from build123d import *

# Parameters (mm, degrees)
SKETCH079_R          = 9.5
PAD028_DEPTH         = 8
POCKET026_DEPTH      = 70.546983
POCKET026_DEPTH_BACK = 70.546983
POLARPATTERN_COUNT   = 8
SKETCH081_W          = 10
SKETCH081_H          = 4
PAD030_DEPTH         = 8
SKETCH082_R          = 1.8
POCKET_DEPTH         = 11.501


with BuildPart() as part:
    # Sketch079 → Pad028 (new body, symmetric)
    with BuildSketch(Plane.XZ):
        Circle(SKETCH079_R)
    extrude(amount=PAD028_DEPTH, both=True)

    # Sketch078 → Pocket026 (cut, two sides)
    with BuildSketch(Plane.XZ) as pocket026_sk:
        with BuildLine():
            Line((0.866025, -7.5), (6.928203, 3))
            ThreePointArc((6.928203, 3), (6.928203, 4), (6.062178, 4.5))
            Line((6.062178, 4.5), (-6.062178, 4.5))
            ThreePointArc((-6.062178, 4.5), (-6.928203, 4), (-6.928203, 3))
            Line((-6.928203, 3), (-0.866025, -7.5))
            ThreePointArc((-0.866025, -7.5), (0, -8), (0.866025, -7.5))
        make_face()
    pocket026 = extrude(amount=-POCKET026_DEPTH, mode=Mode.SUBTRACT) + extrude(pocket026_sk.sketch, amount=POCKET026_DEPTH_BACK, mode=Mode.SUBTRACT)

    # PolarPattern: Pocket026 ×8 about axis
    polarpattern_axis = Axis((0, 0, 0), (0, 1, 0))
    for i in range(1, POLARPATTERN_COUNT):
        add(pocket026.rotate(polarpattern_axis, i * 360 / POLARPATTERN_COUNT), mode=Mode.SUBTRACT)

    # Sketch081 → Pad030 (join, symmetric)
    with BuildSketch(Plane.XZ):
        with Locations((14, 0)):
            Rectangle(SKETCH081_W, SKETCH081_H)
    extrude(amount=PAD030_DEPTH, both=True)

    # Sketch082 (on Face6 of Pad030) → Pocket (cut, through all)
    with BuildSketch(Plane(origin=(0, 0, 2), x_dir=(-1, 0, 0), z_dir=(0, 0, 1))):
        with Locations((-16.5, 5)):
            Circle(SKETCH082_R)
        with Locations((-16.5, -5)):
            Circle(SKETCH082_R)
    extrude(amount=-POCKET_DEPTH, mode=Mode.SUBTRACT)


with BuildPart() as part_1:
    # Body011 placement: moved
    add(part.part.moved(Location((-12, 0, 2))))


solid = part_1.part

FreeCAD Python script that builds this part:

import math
import FreeCAD as App
import Part
import Sketcher
Q = App.Units.Quantity

doc = App.newDocument("Part")
body = doc.addObject("PartDesign::Body", "Body")

sketch1 = body.newObject("Sketcher::SketchObject", "Sketch")
sketch1.AttachmentSupport = (doc.getObject("XZ_Plane"), [""])
sketch1.MapMode = "FlatFace"
sketch1.addGeometry(Part.Circle(App.Vector(0, 0, 0), App.Vector(0, 0, 1), 9.5), False)
sketch1.addConstraint(Sketcher.Constraint("Coincident", 0, 3, -1, 1))
sketch1.addConstraint(Sketcher.Constraint("Diameter", 0, 19.0))
pad1 = body.newObject("PartDesign::Pad", "Pad")
pad1.Profile = sketch1
pad1.Length = 16
pad1.Midplane = True

sketch2 = body.newObject("Sketcher::SketchObject", "Sketch001")
sketch2.AttachmentSupport = (doc.getObject("XZ_Plane"), [""])
sketch2.MapMode = "FlatFace"
sketch2.addGeometry(Part.LineSegment(App.Vector(0.866025, -7.5, 0), App.Vector(6.928203, 3, 0)), False)
sketch2.addGeometry(Part.ArcOfCircle(Part.Circle(App.Vector(6.062178, 3.5, 0), App.Vector(0, 0, 1), 1), math.radians(-30), math.radians(89.999977)), False)
sketch2.addGeometry(Part.LineSegment(App.Vector(6.062178, 4.5, 0), App.Vector(-6.062178, 4.5, 0)), False)
sketch2.addGeometry(Part.ArcOfCircle(Part.Circle(App.Vector(-6.062178, 3.5, 0), App.Vector(0, 0, 1), 1), math.radians(90.000023), math.radians(210)), False)
sketch2.addGeometry(Part.LineSegment(App.Vector(-6.928203, 3, 0), App.Vector(-0.866025, -7.5, 0)), False)
sketch2.addGeometry(Part.ArcOfCircle(Part.Circle(App.Vector(0, -7.000001, 0), App.Vector(0, 0, 1), 0.999999), math.radians(-150.000023), math.radians(-29.999977)), False)
sketch2.addConstraint(Sketcher.Constraint("Tangent", 0, 2, 1, 1))
sketch2.addConstraint(Sketcher.Constraint("Tangent", 1, 2, 2, 1))
sketch2.addConstraint(Sketcher.Constraint("Tangent", 2, 2, 3, 1))
sketch2.addConstraint(Sketcher.Constraint("Tangent", 3, 2, 4, 1))
sketch2.addConstraint(Sketcher.Constraint("Tangent", 4, 2, 5, 1))
sketch2.addConstraint(Sketcher.Constraint("Tangent", 5, 2, 0, 1))
sketch2.addConstraint(Sketcher.Constraint("Horizontal", 2))
sketch2.addConstraint(Sketcher.Constraint("Equal", 1, 3))
sketch2.addConstraint(Sketcher.Constraint("Equal", 3, 5))
sketch2.addConstraint(Sketcher.Constraint("Symmetric", 0, 2, 3, 2, -2))
sketch2.addConstraint(Sketcher.Constraint("Radius", 1, 1.0))
sketch2.addConstraint(Sketcher.Constraint("Angle", 0, Q("59.999999 deg")))
sketch2.addConstraint(Sketcher.Constraint("DistanceY", 5, 3, -1, 1, 7.000001))
sketch2.addConstraint(Sketcher.Constraint("DistanceY", -1, 1, 0, 2, 3.0))
pocket1 = body.newObject("PartDesign::Pocket", "Pocket")
pocket1.Profile = sketch2
pocket1.Type = "ThroughAll"
pocket1.Midplane = True
doc.recompute()

polarpattern = body.newObject("PartDesign::PolarPattern", "PolarPattern")
polarpattern.Originals = [pocket1]
polarpattern.Axis = (doc.getObject("Y_Axis"), [""])
polarpattern.Angle = 360
polarpattern.Occurrences = 8
body.Tip = polarpattern

sketch3 = body.newObject("Sketcher::SketchObject", "Sketch002")
sketch3.AttachmentSupport = (doc.getObject("XZ_Plane"), [""])
sketch3.MapMode = "FlatFace"
sketch3.addGeometry(Part.LineSegment(App.Vector(9, 2, 0), App.Vector(9, -2, 0)), False)
sketch3.addGeometry(Part.LineSegment(App.Vector(9, -2, 0), App.Vector(19, -2, 0)), False)
sketch3.addGeometry(Part.LineSegment(App.Vector(19, -2, 0), App.Vector(19, 2, 0)), False)
sketch3.addGeometry(Part.LineSegment(App.Vector(19, 2, 0), App.Vector(9, 2, 0)), False)
sketch3.addConstraint(Sketcher.Constraint("Coincident", 0, 2, 1, 1))
sketch3.addConstraint(Sketcher.Constraint("Coincident", 1, 2, 2, 1))
sketch3.addConstraint(Sketcher.Constraint("Coincident", 2, 2, 3, 1))
sketch3.addConstraint(Sketcher.Constraint("Coincident", 3, 2, 0, 1))
sketch3.addConstraint(Sketcher.Constraint("Vertical", 0))
sketch3.addConstraint(Sketcher.Constraint("Horizontal", 1))
sketch3.addConstraint(Sketcher.Constraint("Vertical", 2))
sketch3.addConstraint(Sketcher.Constraint("Horizontal", 3))
sketch3.addConstraint(Sketcher.Constraint("DistanceX", 1, 1, 1, 2, 10.0))
sketch3.addConstraint(Sketcher.Constraint("DistanceY", 0, 2, 0, 1, 4.0))
sketch3.addConstraint(Sketcher.Constraint("DistanceX", -1, 1, 0, 2, 9.0))
sketch3.addConstraint(Sketcher.Constraint("DistanceY", 0, 2, -1, 1, 2.0))
pad2 = body.newObject("PartDesign::Pad", "Pad001")
pad2.Profile = sketch3
pad2.Length = 16
pad2.Midplane = True

sketch4 = body.newObject("Sketcher::SketchObject", "Sketch003")
sketch4.AttachmentSupport = (doc.getObject("XY_Plane"), [""])
sketch4.MapMode = "FlatFace"
sketch4.AttachmentOffset = App.Placement(App.Vector(0, 0, 2), App.Rotation())
sketch4.addGeometry(Part.Circle(App.Vector(16.5, -5, 0), App.Vector(0, 0, 1), 1.8), False)
sketch4.addGeometry(Part.Circle(App.Vector(16.5, 5, 0), App.Vector(0, 0, 1), 1.8), False)
sketch4.addConstraint(Sketcher.Constraint("Equal", 0, 1))
sketch4.addConstraint(Sketcher.Constraint("Symmetric", 0, 3, 1, 3, -1))
sketch4.addConstraint(Sketcher.Constraint("Diameter", 0, 3.6))
sketch4.addConstraint(Sketcher.Constraint("DistanceY", 0, 3, -1, 1, 5.0))
sketch4.addConstraint(Sketcher.Constraint("DistanceX", -1, 1, 0, 3, 16.5))
pocket2 = body.newObject("PartDesign::Pocket", "Pocket001")
pocket2.Profile = sketch4
pocket2.Type = "ThroughAll"
body2 = doc.addObject("PartDesign::Body", "Body001")
doc.recompute()

body.Placement = App.Placement(App.Vector(-12, 0, 2), App.Rotation(App.Vector(0, 0, 1), 0))
boolean = body2.newObject("PartDesign::Boolean", "Boolean")
boolean.Type = "Fuse"
boolean.addObjects([body])

doc.recompute()
